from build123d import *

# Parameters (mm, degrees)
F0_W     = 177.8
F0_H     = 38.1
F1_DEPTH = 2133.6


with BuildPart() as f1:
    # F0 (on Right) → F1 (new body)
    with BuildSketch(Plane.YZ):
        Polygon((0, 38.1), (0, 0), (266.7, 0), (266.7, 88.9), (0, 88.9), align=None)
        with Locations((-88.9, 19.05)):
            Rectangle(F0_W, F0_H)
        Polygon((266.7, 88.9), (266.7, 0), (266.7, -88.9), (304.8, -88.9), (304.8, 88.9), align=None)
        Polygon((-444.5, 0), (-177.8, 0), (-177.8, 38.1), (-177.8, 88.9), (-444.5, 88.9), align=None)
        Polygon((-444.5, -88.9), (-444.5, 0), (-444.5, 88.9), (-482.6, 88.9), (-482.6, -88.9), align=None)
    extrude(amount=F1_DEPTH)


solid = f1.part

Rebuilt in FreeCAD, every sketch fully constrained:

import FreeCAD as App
import Part
import Sketcher
Q = App.Units.Quantity

doc = App.newDocument("Part")
body = doc.addObject("PartDesign::Body", "Body")

# Sketch on YZ plane
sketch1 = body.newObject("Sketcher::SketchObject", "Sketch")
sketch1.AttachmentSupport = (doc.getObject("YZ_Plane"), [""])
sketch1.MapMode = "FlatFace"
sketch1.addGeometry(Part.LineSegment(App.Vector(0, 88.9, 0), App.Vector(0, 38.1, 0)), False)
sketch1.addGeometry(Part.LineSegment(App.Vector(0, 38.1, 0), App.Vector(-177.8, 38.1, 0)), False)
sketch1.addGeometry(Part.LineSegment(App.Vector(-177.8, 38.1, 0), App.Vector(-177.8, 88.9, 0)), False)
sketch1.addGeometry(Part.LineSegment(App.Vector(-177.8, 88.9, 0), App.Vector(-482.6, 88.9, 0)), False)
sketch1.addGeometry(Part.LineSegment(App.Vector(-482.6, 88.9, 0), App.Vector(-482.6, -88.9, 0)), False)
sketch1.addGeometry(Part.LineSegment(App.Vector(-482.6, -88.9, 0), App.Vector(-444.5, -88.9, 0)), False)
sketch1.addGeometry(Part.LineSegment(App.Vector(-444.5, -88.9, 0), App.Vector(-444.5, 0, 0)), False)
sketch1.addGeometry(Part.LineSegment(App.Vector(-444.5, 0, 0), App.Vector(266.7, 0, 0)), False)
sketch1.addGeometry(Part.LineSegment(App.Vector(266.7, 0, 0), App.Vector(266.7, -88.9, 0)), False)
sketch1.addGeometry(Part.LineSegment(App.Vector(266.7, -88.9, 0), App.Vector(304.8, -88.9, 0)), False)
sketch1.addGeometry(Part.LineSegment(App.Vector(304.8, -88.9, 0), App.Vector(304.8, 88.9, 0)), False)
sketch1.addGeometry(Part.LineSegment(App.Vector(304.8, 88.9, 0), App.Vector(0, 88.9, 0)), False)
sketch1.addConstraint(Sketcher.Constraint("Coincident", 0, 2, 1, 1))
sketch1.addConstraint(Sketcher.Constraint("Coincident", 1, 2, 2, 1))
sketch1.addConstraint(Sketcher.Constraint("Coincident", 2, 2, 3, 1))
sketch1.addConstraint(Sketcher.Constraint("Coincident", 3, 2, 4, 1))
sketch1.addConstraint(Sketcher.Constraint("Coincident", 4, 2, 5, 1))
sketch1.addConstraint(Sketcher.Constraint("Coincident", 5, 2, 6, 1))
sketch1.addConstraint(Sketcher.Constraint("Coincident", 6, 2, 7, 1))
sketch1.addConstraint(Sketcher.Constraint("Coincident", 7, 2, 8, 1))
sketch1.addConstraint(Sketcher.Constraint("Coincident", 8, 2, 9, 1))
sketch1.addConstraint(Sketcher.Constraint("Coincident", 9, 2, 10, 1))
sketch1.addConstraint(Sketcher.Constraint("Coincident", 10, 2, 11, 1))
sketch1.addConstraint(Sketcher.Constraint("Coincident", 11, 2, 0, 1))
sketch1.addConstraint(Sketcher.Constraint("Vertical", 0))
sketch1.addConstraint(Sketcher.Constraint("Horizontal", 1))
sketch1.addConstraint(Sketcher.Constraint("Vertical", 2))
sketch1.addConstraint(Sketcher.Constraint("Horizontal", 3))
sketch1.addConstraint(Sketcher.Constraint("Vertical", 4))
sketch1.addConstraint(Sketcher.Constraint("Horizontal", 5))
sketch1.addConstraint(Sketcher.Constraint("Vertical", 6))
sketch1.addConstraint(Sketcher.Constraint("Horizontal", 7))
sketch1.addConstraint(Sketcher.Constraint("Vertical", 8))
sketch1.addConstraint(Sketcher.Constraint("Horizontal", 9))
sketch1.addConstraint(Sketcher.Constraint("Vertical", 10))
sketch1.addConstraint(Sketcher.Constraint("Horizontal", 11))
sketch1.addConstraint(Sketcher.Constraint("PointOnObject", 0, 2, -2))
sketch1.addConstraint(Sketcher.Constraint("PointOnObject", 6, 2, -1))
sketch1.addConstraint(Sketcher.Constraint("Horizontal", 5, 2, 8, 2))
sketch1.addConstraint(Sketcher.Constraint("Horizontal", 3, 2, 10, 2))
sketch1.addConstraint(Sketcher.Constraint("Equal", 5, 9))
sketch1.addConstraint(Sketcher.Constraint("Equal", 3, 11))
sketch1.addConstraint(Sketcher.Constraint("Equal", 1, 4))
sketch1.addConstraint(Sketcher.Constraint("DistanceX", 1, 2, 1, 1, Q("7 in")))
sketch1.addConstraint(Sketcher.Constraint("DistanceX", 3, 2, 3, 1, Q("12 in")))
sketch1.addConstraint(Sketcher.Constraint("DistanceX", 7, 1, 7, 2, Q("28 in")))
sketch1.addConstraint(Sketcher.Constraint("DistanceY", 0, 2, 0, 1, Q("2 in")))
sketch1.addConstraint(Sketcher.Constraint("DistanceY", 6, 1, 6, 2, Q("3.5 in")))
pad1 = body.newObject("PartDesign::Pad", "Pad")
pad1.Profile = sketch1
pad1.Length = Q("84 in")

doc.recompute()
